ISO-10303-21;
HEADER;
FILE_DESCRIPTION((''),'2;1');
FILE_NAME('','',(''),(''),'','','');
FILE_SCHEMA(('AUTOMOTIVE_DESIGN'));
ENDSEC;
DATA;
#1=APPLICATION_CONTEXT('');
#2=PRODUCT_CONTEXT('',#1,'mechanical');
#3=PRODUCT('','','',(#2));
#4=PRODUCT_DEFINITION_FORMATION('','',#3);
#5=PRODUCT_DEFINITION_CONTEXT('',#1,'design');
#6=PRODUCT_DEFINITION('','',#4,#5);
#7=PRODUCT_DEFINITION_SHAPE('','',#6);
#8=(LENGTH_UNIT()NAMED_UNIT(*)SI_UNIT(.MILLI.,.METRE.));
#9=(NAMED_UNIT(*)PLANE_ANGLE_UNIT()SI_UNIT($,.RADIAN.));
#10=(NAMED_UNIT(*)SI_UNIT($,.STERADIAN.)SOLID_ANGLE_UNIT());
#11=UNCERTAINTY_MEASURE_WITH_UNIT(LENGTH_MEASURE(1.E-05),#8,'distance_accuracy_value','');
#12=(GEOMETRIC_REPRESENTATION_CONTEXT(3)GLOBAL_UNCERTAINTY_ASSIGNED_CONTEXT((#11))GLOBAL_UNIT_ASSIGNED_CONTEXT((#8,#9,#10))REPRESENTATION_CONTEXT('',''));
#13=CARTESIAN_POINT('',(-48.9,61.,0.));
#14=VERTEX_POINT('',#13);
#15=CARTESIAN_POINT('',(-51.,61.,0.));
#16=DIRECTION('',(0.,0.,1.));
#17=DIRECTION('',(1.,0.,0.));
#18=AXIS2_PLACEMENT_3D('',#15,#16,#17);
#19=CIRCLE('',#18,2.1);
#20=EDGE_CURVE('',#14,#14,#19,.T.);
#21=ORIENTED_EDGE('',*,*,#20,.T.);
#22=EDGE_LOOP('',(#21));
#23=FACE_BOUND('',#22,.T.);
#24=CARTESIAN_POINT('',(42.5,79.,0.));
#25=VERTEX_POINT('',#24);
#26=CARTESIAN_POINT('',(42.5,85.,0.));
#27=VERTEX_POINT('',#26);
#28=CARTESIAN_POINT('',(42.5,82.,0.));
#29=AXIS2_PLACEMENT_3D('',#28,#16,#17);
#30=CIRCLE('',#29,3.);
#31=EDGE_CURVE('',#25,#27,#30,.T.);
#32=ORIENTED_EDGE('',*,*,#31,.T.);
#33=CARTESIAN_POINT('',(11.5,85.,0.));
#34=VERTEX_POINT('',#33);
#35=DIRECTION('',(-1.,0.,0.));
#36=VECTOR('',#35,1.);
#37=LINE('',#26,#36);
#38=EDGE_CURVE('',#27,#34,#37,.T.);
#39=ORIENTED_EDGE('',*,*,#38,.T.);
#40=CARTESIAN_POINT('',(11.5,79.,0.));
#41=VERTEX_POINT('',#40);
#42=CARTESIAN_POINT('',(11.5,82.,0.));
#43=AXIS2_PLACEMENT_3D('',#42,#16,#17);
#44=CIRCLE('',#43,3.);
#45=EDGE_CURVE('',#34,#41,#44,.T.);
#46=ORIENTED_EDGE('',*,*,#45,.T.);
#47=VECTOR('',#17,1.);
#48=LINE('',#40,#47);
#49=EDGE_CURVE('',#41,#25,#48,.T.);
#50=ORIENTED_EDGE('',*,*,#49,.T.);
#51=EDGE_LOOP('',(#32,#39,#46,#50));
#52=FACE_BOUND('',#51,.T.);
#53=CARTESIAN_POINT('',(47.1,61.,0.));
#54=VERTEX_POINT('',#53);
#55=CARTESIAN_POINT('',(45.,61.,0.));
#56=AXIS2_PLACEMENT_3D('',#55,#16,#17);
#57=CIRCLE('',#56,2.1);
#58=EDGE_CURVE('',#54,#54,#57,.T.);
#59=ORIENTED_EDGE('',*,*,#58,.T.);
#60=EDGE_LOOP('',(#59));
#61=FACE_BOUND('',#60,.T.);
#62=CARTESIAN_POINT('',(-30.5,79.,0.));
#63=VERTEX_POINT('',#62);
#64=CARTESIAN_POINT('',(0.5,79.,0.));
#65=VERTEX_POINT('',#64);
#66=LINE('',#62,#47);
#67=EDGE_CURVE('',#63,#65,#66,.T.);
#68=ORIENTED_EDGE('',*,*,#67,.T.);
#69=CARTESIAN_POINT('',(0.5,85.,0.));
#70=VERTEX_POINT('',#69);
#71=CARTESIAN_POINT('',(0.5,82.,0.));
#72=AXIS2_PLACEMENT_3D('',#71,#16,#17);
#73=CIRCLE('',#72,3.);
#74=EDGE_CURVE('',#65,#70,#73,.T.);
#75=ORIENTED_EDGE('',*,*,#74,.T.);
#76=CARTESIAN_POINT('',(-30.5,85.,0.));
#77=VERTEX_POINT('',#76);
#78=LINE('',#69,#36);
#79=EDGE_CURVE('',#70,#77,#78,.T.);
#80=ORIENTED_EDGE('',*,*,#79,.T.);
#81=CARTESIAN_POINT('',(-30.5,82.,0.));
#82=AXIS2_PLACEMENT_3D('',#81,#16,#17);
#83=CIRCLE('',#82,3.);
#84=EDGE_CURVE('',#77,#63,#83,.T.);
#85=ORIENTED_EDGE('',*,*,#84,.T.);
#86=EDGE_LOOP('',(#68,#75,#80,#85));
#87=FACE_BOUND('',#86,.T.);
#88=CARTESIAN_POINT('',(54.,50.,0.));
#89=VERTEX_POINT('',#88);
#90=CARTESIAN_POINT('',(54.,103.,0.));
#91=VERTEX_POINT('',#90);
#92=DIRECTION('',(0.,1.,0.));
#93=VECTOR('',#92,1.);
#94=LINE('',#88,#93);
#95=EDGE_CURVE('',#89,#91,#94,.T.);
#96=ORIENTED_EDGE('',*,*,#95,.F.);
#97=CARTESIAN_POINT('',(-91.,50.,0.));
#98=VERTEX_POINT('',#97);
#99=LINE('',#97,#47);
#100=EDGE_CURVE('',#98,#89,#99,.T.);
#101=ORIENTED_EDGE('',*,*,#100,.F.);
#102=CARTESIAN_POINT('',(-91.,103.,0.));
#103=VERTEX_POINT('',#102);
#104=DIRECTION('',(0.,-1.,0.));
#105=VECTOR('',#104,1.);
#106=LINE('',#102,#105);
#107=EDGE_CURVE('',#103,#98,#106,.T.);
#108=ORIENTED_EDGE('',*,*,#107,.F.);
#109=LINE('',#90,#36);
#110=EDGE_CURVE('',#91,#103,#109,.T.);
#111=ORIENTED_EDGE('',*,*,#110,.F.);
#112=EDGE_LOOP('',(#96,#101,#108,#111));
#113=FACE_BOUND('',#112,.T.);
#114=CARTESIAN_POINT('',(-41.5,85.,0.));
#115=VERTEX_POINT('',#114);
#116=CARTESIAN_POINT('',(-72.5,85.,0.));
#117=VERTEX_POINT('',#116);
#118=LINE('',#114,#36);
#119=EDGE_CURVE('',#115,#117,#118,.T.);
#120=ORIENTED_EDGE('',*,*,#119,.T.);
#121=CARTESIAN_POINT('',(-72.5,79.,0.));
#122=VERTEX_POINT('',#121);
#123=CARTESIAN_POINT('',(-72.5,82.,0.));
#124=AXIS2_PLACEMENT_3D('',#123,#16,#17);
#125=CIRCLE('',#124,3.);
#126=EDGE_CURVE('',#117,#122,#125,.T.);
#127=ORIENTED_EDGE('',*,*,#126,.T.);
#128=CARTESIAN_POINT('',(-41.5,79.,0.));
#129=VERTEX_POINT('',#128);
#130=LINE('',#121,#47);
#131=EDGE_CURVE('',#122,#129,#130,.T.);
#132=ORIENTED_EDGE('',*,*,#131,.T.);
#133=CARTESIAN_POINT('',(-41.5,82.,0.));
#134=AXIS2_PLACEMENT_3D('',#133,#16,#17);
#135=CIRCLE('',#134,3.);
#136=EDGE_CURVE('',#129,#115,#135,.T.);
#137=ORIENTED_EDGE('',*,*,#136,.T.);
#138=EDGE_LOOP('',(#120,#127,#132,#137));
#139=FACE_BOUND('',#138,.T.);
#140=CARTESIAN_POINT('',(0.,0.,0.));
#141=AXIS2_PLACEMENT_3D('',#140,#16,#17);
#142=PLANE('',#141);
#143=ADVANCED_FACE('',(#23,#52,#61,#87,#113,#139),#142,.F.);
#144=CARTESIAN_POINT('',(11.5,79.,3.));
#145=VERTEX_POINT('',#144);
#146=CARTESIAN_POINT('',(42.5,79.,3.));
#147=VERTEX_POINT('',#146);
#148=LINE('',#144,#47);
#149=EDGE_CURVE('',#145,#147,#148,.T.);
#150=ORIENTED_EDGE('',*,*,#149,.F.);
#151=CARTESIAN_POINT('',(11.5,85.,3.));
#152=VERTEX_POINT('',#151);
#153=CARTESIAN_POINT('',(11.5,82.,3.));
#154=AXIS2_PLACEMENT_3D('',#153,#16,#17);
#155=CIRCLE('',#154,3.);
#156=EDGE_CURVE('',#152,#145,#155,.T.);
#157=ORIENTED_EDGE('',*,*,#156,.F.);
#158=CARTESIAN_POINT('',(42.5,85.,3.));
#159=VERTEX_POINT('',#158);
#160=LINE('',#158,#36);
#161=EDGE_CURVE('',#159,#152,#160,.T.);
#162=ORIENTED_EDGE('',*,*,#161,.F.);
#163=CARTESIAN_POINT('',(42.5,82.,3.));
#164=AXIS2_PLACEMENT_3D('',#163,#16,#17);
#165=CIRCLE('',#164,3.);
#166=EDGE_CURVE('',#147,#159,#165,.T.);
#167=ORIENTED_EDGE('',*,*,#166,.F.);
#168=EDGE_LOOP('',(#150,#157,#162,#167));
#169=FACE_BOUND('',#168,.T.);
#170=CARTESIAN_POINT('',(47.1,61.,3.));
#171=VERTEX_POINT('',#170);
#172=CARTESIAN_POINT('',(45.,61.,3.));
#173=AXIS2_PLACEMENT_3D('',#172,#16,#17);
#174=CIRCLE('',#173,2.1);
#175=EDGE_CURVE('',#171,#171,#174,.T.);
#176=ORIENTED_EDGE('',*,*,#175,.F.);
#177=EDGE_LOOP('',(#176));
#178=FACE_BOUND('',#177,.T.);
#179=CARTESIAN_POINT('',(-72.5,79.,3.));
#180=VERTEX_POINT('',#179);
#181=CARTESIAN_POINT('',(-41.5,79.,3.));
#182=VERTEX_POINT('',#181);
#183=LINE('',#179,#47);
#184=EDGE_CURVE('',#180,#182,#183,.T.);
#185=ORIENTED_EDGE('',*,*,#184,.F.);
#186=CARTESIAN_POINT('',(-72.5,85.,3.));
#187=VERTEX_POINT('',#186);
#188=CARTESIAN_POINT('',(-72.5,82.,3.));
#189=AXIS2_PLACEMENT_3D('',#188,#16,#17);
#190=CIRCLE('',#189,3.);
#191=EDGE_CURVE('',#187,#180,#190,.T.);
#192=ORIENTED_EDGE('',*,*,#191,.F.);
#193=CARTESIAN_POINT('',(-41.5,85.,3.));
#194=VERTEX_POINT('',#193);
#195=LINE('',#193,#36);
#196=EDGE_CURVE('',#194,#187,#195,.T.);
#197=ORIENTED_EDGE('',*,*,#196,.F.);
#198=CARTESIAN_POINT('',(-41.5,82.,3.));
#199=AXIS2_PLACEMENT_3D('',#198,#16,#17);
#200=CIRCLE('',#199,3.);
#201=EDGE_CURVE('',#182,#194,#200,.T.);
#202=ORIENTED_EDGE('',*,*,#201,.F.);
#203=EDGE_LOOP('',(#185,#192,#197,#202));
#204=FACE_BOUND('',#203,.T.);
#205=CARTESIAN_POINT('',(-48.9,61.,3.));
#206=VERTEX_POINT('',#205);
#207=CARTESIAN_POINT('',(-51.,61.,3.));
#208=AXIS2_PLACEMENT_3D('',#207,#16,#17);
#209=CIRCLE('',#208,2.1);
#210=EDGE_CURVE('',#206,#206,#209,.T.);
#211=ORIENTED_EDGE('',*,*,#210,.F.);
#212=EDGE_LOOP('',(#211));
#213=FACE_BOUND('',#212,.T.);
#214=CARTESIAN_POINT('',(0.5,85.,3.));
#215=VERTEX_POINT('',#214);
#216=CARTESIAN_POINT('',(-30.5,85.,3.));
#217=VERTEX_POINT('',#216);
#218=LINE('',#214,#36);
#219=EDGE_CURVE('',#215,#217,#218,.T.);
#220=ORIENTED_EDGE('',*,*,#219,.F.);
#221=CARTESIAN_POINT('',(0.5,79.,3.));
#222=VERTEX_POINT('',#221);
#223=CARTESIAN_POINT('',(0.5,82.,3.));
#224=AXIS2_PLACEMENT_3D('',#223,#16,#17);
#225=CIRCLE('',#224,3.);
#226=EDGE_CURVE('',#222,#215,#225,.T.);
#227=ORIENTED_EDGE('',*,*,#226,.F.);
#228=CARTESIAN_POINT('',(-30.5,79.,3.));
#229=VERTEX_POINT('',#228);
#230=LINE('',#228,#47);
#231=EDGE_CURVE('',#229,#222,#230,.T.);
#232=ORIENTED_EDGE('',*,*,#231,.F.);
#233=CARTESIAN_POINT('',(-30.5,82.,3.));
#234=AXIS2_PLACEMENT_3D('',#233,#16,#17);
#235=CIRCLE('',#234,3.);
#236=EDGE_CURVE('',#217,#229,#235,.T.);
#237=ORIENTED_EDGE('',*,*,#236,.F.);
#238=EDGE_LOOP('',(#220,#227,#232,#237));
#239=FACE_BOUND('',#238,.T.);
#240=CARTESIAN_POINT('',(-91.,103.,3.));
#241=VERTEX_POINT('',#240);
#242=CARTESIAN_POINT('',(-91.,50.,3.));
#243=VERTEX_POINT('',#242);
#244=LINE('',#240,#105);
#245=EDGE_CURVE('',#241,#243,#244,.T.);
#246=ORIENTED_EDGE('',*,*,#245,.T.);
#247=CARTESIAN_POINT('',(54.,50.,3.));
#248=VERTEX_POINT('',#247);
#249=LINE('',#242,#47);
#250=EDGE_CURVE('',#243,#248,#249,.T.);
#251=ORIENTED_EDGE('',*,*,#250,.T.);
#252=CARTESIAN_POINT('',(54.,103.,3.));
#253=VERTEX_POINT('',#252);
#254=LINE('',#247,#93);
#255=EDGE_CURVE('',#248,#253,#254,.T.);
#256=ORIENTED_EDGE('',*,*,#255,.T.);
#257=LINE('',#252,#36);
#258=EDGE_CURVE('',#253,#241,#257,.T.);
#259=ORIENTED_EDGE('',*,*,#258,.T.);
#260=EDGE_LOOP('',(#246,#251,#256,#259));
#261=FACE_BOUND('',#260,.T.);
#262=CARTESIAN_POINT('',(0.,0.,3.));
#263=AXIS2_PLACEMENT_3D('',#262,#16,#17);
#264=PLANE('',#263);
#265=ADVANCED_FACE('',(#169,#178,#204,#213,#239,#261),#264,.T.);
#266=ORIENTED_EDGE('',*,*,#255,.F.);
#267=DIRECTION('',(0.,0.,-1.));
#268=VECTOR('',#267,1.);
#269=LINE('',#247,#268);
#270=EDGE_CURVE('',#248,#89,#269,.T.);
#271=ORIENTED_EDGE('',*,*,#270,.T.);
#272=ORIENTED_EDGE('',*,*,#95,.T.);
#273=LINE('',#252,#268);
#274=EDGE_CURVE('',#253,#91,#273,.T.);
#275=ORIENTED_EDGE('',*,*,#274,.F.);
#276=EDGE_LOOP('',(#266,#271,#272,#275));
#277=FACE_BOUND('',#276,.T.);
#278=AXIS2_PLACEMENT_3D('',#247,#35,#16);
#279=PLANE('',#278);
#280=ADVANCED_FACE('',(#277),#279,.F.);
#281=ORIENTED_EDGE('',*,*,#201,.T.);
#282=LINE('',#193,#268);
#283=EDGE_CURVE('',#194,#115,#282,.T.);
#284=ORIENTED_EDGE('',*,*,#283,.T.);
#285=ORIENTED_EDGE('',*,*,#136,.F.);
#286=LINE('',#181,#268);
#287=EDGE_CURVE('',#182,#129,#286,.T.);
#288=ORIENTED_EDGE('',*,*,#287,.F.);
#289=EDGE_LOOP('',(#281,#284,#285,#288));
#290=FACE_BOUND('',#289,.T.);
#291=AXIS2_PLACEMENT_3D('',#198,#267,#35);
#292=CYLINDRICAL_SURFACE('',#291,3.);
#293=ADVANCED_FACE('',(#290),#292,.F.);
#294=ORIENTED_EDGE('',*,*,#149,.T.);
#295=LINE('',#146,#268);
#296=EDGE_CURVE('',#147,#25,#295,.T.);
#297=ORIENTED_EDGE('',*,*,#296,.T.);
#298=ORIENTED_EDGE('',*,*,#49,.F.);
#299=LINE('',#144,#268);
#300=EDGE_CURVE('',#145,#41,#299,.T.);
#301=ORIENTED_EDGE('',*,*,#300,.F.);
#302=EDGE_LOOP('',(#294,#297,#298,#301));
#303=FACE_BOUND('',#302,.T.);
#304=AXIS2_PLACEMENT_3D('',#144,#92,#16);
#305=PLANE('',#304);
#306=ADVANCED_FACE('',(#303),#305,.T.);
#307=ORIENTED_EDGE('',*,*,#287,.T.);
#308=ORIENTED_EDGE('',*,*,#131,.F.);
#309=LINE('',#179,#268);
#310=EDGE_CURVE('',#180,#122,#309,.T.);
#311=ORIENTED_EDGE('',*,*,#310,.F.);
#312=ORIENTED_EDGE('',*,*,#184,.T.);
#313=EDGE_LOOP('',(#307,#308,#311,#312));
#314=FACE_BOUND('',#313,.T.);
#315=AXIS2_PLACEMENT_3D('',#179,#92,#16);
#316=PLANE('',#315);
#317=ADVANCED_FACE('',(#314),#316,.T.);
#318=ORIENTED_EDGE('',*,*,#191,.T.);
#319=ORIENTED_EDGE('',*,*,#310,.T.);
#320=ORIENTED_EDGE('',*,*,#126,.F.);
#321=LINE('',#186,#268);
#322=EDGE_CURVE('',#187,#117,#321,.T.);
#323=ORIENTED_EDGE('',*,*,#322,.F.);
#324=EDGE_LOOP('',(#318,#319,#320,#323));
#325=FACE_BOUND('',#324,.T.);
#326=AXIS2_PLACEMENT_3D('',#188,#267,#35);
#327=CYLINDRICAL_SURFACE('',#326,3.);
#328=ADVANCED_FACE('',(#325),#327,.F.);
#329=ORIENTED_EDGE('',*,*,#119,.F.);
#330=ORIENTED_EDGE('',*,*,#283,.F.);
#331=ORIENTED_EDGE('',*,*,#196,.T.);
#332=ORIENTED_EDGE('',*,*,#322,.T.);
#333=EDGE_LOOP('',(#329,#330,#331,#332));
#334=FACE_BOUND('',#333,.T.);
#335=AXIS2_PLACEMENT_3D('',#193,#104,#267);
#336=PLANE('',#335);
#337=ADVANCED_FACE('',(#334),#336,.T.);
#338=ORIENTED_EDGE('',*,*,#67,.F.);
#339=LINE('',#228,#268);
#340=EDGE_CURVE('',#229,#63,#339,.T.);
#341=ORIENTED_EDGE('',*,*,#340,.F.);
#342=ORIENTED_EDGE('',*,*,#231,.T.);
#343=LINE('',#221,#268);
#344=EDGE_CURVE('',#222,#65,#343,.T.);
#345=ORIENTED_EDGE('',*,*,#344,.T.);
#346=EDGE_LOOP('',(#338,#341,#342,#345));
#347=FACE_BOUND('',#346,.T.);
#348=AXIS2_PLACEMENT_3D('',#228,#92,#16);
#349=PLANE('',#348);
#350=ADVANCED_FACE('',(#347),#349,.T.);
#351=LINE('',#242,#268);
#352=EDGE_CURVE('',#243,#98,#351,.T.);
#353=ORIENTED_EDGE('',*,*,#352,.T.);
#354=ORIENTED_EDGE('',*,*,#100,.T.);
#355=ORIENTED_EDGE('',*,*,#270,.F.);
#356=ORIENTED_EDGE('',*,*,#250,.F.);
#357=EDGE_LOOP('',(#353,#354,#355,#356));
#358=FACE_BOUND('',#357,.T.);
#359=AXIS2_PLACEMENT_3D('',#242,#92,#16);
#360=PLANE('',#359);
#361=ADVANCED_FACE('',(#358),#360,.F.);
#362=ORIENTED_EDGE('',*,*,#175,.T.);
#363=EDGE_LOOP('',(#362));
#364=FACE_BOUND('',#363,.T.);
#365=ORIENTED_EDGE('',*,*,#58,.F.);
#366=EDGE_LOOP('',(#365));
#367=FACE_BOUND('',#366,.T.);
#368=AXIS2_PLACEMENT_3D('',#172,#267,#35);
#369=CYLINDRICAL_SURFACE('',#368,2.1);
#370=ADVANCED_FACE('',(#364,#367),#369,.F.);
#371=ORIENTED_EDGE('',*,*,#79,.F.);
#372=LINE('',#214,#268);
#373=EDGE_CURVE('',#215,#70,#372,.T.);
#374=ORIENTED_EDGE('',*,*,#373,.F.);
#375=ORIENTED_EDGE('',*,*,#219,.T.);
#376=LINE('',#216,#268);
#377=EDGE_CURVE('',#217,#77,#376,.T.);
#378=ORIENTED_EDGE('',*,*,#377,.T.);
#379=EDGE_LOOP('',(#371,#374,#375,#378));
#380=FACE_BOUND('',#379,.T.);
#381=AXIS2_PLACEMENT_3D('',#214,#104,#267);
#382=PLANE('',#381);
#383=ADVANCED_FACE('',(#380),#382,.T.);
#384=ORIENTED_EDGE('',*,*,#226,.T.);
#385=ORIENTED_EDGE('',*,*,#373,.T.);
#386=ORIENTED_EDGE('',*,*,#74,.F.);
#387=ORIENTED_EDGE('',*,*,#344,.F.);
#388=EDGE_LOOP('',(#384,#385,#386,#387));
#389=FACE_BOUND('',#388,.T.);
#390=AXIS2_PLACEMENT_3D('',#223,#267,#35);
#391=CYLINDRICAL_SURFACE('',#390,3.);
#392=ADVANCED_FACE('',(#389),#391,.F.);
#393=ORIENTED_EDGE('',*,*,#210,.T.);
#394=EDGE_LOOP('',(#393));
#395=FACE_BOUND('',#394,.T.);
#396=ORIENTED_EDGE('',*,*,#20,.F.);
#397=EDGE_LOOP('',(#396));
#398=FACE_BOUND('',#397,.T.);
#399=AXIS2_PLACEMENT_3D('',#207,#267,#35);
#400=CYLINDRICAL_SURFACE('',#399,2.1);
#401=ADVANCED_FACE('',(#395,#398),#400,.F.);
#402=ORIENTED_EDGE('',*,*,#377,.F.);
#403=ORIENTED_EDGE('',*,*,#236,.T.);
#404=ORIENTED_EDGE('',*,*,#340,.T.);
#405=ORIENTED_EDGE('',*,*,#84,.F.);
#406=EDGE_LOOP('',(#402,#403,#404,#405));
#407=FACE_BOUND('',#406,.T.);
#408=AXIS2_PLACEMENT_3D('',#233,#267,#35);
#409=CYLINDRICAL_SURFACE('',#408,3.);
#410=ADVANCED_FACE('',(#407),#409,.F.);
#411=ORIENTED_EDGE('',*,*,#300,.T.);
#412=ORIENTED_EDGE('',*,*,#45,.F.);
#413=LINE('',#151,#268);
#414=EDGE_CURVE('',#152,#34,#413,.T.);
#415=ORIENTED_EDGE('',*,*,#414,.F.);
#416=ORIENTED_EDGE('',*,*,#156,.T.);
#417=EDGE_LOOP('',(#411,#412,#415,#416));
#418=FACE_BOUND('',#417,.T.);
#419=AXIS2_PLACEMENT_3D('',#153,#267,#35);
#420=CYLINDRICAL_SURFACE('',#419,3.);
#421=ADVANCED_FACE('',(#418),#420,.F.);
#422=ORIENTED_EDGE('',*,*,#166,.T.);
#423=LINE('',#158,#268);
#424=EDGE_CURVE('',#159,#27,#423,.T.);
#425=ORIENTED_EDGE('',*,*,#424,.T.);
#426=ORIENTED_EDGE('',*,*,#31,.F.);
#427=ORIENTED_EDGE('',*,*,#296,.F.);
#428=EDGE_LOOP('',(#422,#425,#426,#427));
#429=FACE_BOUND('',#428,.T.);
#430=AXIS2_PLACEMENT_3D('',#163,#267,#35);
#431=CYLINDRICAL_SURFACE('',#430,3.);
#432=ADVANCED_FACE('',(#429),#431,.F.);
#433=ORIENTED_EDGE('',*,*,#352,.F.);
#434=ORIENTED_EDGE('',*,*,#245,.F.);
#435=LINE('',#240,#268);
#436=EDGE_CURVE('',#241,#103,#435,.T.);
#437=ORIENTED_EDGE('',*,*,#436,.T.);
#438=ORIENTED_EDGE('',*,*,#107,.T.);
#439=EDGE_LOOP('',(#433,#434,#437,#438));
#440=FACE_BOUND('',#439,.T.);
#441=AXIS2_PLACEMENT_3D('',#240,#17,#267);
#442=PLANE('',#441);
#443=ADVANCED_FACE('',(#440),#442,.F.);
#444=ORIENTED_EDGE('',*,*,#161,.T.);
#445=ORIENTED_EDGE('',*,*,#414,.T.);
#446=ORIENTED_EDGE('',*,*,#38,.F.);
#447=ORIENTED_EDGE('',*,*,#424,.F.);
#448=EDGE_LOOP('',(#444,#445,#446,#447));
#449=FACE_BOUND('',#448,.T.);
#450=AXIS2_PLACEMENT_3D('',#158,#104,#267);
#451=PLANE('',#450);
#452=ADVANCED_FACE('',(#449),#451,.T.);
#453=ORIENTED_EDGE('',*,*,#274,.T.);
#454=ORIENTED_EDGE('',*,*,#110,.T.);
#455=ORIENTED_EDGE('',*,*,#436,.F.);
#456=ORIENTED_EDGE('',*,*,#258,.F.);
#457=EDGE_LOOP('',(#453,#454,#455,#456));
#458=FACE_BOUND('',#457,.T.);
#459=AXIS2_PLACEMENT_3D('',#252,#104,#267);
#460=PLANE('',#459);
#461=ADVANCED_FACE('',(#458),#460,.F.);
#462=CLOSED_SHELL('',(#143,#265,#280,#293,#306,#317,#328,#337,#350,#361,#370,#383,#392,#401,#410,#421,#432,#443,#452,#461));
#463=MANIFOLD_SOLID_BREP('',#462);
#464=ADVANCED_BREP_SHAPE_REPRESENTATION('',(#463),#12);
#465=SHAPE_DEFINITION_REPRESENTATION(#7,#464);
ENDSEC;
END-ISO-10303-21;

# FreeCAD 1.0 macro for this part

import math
import FreeCAD as App
import Part
import Sketcher

V = App.Vector
Q = App.Units.Quantity


def add_polygon(sketch, points):
    """Adds a closed chain of lines whose ends are joined by coincident constraints."""
    first, n = sketch.GeometryCount, len(points)
    for a, b in zip(points, points[1:] + points[:1]):
        sketch.addGeometry(Part.LineSegment(App.Vector(*a, 0), App.Vector(*b, 0)), False)
    for i in range(n):
        sketch.addConstraint(Sketcher.Constraint("Coincident", first + i, 2, first + (i + 1) % n, 1))

doc = App.newDocument("Part")
body = doc.addObject("PartDesign::Body", "Body")

# Sketch on XY plane
sketch1 = doc.addObject("Sketcher::SketchObject", "Sketch")
body.addObject(sketch1)
sketch1.AttachmentSupport = (doc.XY_Plane, [""])
sketch1.MapMode = "FlatFace"
add_polygon(sketch1, [(-91, 103), (-91, 50), (54, 50), (54, 103)])  # lines 0-3
sketch1.addGeometry(Part.Circle(V(-51, 61, 0), V(0, 0, 1), 2.1), False)  # 4
sketch1.addGeometry(Part.Circle(V(45, 61, 0), V(0, 0, 1), 2.1), False)  # 5
sketch1.addGeometry(Part.LineSegment(V(-41.5, 79, 0), V(-72.5, 79, 0)), False)  # 6
sketch1.addGeometry(Part.ArcOfCircle(Part.Circle(V(-72.5, 82, 0), V(0, 0, 1), 3), math.radians(90), math.radians(270)), False)  # 7
sketch1.addGeometry(Part.LineSegment(V(-72.5, 85, 0), V(-41.5, 85, 0)), False)  # 8
sketch1.addGeometry(Part.ArcOfCircle(Part.Circle(V(-41.5, 82, 0), V(0, 0, 1), 3), math.radians(-90), math.radians(90)), False)  # 9
sketch1.addGeometry(Part.LineSegment(V(0.5, 79, 0), V(-30.5, 79, 0)), False)  # 10
sketch1.addGeometry(Part.ArcOfCircle(Part.Circle(V(-30.5, 82, 0), V(0, 0, 1), 3), math.radians(90), math.radians(270)), False)  # 11
sketch1.addGeometry(Part.LineSegment(V(-30.5, 85, 0), V(0.5, 85, 0)), False)  # 12
sketch1.addGeometry(Part.ArcOfCircle(Part.Circle(V(0.5, 82, 0), V(0, 0, 1), 3), math.radians(-90), math.radians(90)), False)  # 13
sketch1.addGeometry(Part.LineSegment(V(42.5, 79, 0), V(11.5, 79, 0)), False)  # 14
sketch1.addGeometry(Part.ArcOfCircle(Part.Circle(V(11.5, 82, 0), V(0, 0, 1), 3), math.radians(90), math.radians(270)), False)  # 15
sketch1.addGeometry(Part.LineSegment(V(11.5, 85, 0), V(42.5, 85, 0)), False)  # 16
sketch1.addGeometry(Part.ArcOfCircle(Part.Circle(V(42.5, 82, 0), V(0, 0, 1), 3), math.radians(-90), math.radians(90)), False)  # 17
sketch1.addConstraint([
    Sketcher.Constraint("Tangent", 6, 2, 7, 2),
    Sketcher.Constraint("Tangent", 7, 1, 8, 1),
    Sketcher.Constraint("Tangent", 8, 2, 9, 2),
    Sketcher.Constraint("Tangent", 9, 1, 6, 1),
    Sketcher.Constraint("Tangent", 10, 2, 11, 2),
    Sketcher.Constraint("Tangent", 11, 1, 12, 1),
    Sketcher.Constraint("Tangent", 12, 2, 13, 2),
    Sketcher.Constraint("Tangent", 13, 1, 10, 1),
    Sketcher.Constraint("Tangent", 14, 2, 15, 2),
    Sketcher.Constraint("Tangent", 15, 1, 16, 1),
    Sketcher.Constraint("Tangent", 16, 2, 17, 2),
    Sketcher.Constraint("Tangent", 17, 1, 14, 1),
    Sketcher.Constraint("Vertical", 0),
    Sketcher.Constraint("Horizontal", 1),
    Sketcher.Constraint("Vertical", 2),
    Sketcher.Constraint("Horizontal", 3),
    Sketcher.Constraint("Horizontal", 6),
    Sketcher.Constraint("Horizontal", 8),
    Sketcher.Constraint("Horizontal", 10),
    Sketcher.Constraint("Horizontal", 12),
    Sketcher.Constraint("Horizontal", 14),
    Sketcher.Constraint("Horizontal", 16),
    Sketcher.Constraint("Equal", 4, 5),
    Sketcher.Constraint("Equal", 9, 11),
    Sketcher.Constraint("Equal", 13, 15),
    Sketcher.Constraint("Horizontal", 4, 3, 5, 3),
    Sketcher.Constraint("Horizontal", 9, 3, 11, 3),
    Sketcher.Constraint("Horizontal", 13, 3, 15, 3),
    Sketcher.Constraint("Equal", 8, 10),
    Sketcher.Constraint("Equal", 12, 14),
    Sketcher.Constraint("Radius", 7, Q("3 mm")),
    Sketcher.Constraint("Diameter", 4, Q("4.2 mm")),
    Sketcher.Constraint("DistanceX", 1, 1, 1, 2, Q("145 mm")),
    Sketcher.Constraint("DistanceX", 6, 2, 6, 1, Q("31 mm")),
    Sketcher.Constraint("DistanceY", 0, 2, 0, 1, Q("53 mm")),
    Sketcher.Constraint("DistanceX", 4, 3, -1, 1, Q("51 mm")),
    Sketcher.Constraint("DistanceY", -1, 1, 4, 3, Q("61 mm")),
    Sketcher.Constraint("DistanceX", -1, 1, 5, 3, Q("45 mm")),
    Sketcher.Constraint("DistanceY", -1, 1, 7, 3, Q("82 mm")),
    Sketcher.Constraint("DistanceX", 0, 2, -1, 1, Q("91 mm")),
    Sketcher.Constraint("DistanceY", -1, 1, 0, 2, Q("50 mm")),
    Sketcher.Constraint("DistanceX", 9, 3, 11, 3, Q("11 mm")),
    Sketcher.Constraint("DistanceX", 13, 3, 15, 3, Q("11 mm")),
    Sketcher.Constraint("DistanceX", 7, 3, -1, 1, Q("72.5 mm")),
])
pad1 = doc.addObject("PartDesign::Pad", "Pad")
body.addObject(pad1)
pad1.Profile = sketch1
pad1.Length = 3

doc.recompute()
